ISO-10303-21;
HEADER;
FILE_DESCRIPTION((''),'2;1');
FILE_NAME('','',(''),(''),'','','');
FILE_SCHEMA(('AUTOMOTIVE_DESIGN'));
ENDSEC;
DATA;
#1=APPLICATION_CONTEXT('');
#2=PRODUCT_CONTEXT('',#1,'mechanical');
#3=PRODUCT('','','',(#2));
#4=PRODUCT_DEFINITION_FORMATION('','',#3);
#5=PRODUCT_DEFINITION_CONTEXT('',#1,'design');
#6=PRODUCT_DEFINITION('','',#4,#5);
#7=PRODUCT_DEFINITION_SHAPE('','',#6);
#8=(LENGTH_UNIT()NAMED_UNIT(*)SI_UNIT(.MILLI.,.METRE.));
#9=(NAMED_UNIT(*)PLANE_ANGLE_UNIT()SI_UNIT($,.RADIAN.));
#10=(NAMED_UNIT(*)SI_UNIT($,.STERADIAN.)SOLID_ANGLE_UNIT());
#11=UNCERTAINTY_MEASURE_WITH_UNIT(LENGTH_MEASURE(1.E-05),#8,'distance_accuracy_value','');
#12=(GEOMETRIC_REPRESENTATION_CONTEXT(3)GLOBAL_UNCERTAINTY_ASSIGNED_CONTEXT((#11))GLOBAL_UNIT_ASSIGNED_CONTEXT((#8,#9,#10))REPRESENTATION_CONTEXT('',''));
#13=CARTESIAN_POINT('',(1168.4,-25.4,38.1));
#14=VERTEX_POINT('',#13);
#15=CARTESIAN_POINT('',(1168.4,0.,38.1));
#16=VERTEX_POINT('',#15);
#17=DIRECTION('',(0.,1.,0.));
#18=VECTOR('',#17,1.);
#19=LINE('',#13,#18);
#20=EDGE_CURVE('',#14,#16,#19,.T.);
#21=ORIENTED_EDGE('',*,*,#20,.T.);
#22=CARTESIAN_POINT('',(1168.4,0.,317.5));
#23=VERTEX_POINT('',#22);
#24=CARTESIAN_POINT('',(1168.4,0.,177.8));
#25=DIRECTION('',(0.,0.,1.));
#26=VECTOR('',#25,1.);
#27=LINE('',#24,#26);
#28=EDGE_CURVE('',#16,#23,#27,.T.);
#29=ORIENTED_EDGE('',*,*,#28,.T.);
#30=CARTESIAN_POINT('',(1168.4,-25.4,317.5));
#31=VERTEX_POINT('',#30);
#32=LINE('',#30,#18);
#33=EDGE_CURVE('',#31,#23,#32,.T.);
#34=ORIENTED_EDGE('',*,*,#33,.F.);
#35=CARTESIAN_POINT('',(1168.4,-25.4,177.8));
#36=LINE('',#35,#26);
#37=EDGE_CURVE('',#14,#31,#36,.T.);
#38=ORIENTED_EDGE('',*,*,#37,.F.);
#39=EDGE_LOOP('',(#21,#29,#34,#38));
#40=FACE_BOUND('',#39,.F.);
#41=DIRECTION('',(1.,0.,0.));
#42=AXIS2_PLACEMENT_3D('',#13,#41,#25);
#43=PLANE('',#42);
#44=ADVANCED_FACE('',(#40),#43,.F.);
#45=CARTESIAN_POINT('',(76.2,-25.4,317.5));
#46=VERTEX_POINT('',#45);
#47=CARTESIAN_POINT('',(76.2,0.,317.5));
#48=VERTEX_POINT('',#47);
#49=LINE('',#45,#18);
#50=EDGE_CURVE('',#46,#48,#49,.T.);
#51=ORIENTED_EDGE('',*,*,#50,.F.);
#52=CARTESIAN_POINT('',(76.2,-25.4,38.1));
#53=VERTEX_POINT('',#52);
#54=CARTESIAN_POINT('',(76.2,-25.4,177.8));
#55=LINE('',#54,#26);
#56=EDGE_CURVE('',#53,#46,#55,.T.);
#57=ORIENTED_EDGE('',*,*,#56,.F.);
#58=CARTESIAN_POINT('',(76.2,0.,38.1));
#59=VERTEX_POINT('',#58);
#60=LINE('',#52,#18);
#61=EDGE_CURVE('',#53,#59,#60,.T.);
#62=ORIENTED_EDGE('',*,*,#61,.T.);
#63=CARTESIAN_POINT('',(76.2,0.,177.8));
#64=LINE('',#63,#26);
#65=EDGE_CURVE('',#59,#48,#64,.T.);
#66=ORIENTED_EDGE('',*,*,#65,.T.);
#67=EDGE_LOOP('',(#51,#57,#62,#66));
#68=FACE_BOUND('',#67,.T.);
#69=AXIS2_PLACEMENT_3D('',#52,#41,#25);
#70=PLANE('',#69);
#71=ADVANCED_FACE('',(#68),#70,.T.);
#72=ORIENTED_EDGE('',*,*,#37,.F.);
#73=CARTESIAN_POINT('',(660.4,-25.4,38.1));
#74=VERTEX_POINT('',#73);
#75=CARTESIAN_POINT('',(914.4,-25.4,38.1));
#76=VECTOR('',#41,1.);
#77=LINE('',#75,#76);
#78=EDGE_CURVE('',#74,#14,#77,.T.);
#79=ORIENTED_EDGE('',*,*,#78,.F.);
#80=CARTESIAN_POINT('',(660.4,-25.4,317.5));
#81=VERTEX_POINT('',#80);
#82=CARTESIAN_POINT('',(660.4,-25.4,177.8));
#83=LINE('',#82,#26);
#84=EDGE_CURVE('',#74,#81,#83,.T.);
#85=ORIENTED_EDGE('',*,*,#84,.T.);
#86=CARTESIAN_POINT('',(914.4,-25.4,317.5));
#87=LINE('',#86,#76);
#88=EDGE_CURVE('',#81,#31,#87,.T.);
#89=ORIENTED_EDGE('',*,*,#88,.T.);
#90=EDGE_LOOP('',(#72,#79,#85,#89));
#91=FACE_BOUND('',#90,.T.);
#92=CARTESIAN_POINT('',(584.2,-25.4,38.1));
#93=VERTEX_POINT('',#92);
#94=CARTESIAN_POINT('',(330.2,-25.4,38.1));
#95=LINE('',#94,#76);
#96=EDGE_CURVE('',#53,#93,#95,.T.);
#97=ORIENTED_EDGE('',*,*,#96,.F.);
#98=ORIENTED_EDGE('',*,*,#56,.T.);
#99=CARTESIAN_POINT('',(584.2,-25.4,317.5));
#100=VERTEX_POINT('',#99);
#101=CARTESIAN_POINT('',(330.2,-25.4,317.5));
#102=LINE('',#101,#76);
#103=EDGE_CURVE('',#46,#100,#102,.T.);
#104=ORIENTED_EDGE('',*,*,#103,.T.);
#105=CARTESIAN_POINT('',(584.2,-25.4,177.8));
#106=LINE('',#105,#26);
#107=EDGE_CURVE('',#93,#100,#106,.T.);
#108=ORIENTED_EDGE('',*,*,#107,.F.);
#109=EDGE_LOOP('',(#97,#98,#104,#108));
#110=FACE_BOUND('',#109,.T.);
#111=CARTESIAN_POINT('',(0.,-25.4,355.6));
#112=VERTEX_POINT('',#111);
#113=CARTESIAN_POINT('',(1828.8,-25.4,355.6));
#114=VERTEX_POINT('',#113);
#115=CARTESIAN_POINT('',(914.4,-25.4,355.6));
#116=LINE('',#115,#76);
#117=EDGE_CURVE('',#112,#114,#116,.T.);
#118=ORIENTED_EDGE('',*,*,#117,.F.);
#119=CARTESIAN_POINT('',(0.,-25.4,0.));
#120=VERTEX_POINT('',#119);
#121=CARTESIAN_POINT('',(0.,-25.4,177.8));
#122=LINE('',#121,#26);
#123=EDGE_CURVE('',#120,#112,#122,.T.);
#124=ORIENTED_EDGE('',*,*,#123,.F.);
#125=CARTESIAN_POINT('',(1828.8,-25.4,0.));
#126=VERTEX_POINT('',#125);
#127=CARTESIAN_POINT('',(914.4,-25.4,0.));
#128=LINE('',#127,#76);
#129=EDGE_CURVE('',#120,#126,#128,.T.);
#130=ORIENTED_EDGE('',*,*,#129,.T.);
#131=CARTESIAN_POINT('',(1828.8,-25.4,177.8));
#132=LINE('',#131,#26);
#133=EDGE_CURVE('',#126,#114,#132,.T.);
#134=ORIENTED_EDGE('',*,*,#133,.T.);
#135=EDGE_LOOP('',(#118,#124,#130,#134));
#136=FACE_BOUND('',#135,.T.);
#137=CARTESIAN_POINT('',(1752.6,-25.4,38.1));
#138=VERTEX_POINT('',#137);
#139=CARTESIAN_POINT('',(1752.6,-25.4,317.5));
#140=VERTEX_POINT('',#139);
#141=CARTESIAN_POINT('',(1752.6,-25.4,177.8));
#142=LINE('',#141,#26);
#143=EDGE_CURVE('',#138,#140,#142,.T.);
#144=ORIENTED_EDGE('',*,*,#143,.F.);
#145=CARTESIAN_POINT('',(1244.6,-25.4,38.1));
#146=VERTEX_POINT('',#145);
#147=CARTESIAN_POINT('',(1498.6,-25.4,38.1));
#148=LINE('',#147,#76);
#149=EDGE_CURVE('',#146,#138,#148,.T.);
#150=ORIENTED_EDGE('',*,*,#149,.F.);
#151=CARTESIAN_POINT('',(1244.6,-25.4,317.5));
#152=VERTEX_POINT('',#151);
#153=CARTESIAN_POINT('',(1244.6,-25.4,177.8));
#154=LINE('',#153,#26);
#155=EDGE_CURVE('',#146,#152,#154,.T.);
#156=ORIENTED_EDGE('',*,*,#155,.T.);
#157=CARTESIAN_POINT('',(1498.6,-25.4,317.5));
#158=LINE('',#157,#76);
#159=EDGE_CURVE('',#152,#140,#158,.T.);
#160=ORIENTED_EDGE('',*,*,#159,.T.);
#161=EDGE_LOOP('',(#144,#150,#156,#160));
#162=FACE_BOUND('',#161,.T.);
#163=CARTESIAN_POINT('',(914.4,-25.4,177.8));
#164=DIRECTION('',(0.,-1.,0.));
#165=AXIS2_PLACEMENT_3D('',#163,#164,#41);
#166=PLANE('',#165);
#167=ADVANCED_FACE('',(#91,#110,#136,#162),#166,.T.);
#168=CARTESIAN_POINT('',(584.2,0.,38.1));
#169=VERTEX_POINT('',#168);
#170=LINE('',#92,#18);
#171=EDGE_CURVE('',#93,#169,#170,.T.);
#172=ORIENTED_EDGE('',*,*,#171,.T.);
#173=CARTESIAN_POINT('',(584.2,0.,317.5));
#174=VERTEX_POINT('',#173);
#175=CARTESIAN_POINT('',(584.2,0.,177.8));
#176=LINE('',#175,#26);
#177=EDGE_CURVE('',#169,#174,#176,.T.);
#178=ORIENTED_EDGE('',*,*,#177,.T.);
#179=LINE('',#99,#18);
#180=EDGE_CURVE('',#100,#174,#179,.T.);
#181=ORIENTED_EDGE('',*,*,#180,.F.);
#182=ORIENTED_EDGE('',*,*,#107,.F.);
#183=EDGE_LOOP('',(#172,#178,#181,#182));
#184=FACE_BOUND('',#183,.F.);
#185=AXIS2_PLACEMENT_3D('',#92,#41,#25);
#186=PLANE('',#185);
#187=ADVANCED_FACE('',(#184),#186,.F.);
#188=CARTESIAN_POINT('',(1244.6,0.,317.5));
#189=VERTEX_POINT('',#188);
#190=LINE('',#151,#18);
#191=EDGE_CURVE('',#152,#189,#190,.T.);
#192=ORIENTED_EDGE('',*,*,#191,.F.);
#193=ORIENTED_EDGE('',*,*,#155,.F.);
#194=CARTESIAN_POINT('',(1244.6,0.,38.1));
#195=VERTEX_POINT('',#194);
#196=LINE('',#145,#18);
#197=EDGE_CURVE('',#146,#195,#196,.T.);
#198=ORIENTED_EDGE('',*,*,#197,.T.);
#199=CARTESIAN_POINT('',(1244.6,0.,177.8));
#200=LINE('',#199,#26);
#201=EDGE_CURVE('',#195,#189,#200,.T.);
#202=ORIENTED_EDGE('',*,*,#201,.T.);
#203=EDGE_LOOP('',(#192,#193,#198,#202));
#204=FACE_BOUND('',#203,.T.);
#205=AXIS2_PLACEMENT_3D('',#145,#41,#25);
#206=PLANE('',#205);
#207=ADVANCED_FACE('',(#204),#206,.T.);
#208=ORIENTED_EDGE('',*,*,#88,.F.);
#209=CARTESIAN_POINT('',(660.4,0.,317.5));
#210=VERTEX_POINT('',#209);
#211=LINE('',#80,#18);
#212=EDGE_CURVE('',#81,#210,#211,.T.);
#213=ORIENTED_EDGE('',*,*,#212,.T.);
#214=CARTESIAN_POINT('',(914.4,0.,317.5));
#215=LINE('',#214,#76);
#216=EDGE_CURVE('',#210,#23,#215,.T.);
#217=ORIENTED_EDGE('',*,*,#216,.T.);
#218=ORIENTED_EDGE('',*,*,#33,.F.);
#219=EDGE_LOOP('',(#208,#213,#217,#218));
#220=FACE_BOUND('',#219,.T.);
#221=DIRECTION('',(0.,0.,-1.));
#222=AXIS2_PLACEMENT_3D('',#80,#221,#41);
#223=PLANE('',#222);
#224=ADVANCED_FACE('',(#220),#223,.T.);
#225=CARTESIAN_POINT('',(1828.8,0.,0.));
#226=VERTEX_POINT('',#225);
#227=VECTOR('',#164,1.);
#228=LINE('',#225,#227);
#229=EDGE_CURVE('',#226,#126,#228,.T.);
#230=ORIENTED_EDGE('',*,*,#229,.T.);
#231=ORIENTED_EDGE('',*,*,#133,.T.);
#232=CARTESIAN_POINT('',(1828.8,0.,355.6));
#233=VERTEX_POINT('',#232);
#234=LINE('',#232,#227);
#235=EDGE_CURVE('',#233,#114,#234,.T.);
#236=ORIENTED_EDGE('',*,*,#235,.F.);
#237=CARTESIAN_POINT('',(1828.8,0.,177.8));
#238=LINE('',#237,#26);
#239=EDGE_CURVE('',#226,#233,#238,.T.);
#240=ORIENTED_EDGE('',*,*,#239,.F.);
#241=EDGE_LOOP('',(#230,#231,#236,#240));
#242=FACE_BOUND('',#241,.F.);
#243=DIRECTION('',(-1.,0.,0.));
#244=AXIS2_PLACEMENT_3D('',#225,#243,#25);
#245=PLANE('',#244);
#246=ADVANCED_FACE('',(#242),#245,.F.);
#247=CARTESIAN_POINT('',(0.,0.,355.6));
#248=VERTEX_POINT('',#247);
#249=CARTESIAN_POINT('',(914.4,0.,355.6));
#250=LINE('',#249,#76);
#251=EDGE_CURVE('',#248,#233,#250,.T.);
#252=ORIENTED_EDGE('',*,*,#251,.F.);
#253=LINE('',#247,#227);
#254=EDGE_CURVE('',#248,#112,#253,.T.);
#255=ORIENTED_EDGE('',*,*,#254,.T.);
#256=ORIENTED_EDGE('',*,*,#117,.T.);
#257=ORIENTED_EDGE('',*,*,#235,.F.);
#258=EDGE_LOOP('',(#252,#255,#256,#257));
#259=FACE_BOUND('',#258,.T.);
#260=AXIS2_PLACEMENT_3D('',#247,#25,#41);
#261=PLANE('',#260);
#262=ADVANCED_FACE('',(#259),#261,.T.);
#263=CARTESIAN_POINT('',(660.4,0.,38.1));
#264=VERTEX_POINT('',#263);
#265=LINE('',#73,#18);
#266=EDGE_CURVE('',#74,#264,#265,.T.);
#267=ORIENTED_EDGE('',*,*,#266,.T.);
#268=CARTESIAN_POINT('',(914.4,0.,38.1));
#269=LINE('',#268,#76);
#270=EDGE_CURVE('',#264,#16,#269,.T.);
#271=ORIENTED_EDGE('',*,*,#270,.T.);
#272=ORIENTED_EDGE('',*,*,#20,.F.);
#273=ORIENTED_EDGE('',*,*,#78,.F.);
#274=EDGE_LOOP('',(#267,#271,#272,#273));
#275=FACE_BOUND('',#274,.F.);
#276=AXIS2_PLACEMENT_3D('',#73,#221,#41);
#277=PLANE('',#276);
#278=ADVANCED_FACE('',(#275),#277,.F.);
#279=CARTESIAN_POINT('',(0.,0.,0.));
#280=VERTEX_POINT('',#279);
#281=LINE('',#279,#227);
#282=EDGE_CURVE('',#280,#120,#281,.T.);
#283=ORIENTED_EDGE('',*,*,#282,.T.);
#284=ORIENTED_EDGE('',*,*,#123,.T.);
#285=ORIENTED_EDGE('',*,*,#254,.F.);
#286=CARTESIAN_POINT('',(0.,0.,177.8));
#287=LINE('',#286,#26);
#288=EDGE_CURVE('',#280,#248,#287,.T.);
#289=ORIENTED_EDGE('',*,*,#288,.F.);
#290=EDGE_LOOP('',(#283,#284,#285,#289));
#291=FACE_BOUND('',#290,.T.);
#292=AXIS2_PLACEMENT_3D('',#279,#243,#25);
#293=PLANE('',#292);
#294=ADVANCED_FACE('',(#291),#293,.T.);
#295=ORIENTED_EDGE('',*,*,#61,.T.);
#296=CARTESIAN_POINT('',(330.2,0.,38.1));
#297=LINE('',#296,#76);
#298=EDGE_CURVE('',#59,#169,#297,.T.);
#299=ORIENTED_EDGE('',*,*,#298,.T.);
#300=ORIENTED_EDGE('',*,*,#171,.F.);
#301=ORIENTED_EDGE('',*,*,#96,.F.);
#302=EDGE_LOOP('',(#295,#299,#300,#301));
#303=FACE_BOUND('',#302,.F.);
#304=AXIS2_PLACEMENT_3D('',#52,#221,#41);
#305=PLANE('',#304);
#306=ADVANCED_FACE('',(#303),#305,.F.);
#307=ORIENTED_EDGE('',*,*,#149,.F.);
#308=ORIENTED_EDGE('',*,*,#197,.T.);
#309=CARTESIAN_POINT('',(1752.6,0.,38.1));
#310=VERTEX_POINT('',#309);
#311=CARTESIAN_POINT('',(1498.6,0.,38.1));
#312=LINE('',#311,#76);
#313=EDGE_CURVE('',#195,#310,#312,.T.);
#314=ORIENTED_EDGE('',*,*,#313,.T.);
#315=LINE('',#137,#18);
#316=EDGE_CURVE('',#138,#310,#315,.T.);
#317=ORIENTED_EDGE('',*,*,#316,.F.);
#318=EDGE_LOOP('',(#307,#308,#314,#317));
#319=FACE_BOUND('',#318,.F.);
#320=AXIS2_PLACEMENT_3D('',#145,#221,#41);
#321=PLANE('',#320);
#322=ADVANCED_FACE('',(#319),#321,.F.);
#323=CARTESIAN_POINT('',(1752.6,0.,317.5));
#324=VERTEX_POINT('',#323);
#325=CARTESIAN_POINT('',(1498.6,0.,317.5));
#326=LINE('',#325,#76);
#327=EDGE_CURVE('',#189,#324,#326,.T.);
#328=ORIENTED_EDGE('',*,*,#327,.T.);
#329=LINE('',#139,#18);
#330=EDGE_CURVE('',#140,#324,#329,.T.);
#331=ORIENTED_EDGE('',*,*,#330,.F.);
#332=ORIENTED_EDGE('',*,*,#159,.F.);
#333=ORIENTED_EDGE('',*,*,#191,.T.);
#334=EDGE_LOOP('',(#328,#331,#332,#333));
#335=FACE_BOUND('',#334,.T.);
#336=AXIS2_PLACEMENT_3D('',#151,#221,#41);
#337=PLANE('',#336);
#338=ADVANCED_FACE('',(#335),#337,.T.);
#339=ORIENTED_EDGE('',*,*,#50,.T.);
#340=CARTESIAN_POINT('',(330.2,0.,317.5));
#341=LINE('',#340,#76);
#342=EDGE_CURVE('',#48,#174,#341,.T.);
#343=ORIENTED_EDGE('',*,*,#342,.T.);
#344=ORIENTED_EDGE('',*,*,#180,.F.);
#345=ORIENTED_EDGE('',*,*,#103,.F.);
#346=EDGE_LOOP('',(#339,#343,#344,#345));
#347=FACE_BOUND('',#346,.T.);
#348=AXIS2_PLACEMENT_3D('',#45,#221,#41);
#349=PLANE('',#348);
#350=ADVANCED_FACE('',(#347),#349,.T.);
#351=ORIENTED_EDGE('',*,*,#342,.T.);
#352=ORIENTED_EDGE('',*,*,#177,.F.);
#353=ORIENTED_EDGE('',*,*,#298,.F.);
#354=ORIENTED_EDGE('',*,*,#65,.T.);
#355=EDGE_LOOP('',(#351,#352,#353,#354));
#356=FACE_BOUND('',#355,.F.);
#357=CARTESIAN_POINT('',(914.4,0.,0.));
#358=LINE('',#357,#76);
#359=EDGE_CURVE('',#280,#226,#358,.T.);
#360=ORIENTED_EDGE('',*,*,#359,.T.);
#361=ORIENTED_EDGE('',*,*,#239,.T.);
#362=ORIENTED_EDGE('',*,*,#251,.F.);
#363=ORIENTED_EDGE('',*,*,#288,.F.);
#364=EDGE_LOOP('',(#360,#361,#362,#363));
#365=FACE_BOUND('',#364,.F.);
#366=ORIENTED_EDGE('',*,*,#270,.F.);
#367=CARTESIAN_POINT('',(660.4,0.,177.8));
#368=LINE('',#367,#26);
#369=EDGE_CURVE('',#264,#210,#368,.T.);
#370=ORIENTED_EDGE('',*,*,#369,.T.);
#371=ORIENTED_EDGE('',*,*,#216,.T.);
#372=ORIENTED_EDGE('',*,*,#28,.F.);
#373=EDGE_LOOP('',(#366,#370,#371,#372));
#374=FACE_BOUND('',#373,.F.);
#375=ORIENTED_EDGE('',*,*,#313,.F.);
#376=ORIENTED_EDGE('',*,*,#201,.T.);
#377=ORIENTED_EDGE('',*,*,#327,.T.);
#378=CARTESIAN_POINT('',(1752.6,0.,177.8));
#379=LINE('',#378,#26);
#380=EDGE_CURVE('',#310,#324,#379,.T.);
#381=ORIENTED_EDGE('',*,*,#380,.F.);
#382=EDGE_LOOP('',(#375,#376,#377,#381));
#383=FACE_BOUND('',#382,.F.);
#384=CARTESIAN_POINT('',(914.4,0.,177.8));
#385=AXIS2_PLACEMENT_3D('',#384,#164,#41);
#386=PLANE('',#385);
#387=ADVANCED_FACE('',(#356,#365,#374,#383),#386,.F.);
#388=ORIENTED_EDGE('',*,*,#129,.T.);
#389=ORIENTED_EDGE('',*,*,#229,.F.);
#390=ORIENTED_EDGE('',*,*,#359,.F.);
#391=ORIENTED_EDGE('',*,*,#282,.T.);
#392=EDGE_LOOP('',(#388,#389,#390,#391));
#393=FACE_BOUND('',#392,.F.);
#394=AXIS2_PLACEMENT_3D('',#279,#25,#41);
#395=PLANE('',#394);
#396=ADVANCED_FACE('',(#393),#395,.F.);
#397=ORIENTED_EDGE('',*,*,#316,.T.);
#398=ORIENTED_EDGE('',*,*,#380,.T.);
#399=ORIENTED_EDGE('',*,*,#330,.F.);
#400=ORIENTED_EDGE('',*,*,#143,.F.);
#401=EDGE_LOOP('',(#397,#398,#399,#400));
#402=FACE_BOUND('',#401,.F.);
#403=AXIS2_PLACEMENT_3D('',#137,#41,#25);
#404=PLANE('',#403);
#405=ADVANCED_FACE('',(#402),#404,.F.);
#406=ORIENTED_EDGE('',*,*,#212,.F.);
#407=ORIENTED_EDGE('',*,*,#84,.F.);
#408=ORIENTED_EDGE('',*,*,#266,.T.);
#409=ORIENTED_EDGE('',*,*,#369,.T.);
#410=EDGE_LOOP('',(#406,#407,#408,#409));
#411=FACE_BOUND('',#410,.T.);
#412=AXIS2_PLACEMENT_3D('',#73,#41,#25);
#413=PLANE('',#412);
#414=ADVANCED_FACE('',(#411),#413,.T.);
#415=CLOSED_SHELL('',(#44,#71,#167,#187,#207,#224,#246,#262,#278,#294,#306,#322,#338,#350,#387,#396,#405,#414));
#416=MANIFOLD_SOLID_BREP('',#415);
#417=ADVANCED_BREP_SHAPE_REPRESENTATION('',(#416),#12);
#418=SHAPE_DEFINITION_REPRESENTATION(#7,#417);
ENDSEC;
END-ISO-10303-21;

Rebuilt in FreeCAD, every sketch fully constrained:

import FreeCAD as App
import Part
import Sketcher
from FreeCAD import Vector
Q = App.Units.Quantity


def add_polygon(sketch, points):
    """Adds a closed chain of lines whose ends are joined by coincident constraints."""
    first, n = sketch.GeometryCount, len(points)
    for a, b in zip(points, points[1:] + points[:1]):
        sketch.addGeometry(Part.LineSegment(App.Vector(*a, 0), App.Vector(*b, 0)), False)
    for i in range(n):
        sketch.addConstraint(Sketcher.Constraint("Coincident", first + i, 2, first + (i + 1) % n, 1))

doc = App.newDocument("Part")
params = doc.addObject("Spreadsheet::Sheet", "Params")
for row, (alias, value) in enumerate([
    ("sketch1_width", "72 in"),
    ("sketch1_height", "14 in"),
    ("pad1_length", "1 in"),
    ("sketch2_width", "20 in"),
    ("sketch2_height", "11 in"),
    ("pocket1_length", "1 in"),
], start=1):
    params.set(f"A{row}", alias)
    params.set(f"B{row}", "=" + value)
    params.setAlias(f"B{row}", alias)

body = doc.addObject("PartDesign::Body", "Body")

# Sketch on XZ plane
sketch1 = body.newObject("Sketcher::SketchObject", "Sketch")
sketch1.AttachmentSupport = (doc.getObject("XZ_Plane"), [""])
sketch1.MapMode = "FlatFace"
add_polygon(sketch1, [(0, 356), (0, 0), (1829, 0), (1829, 356)])  # lines 0-3
sketch1.addConstraint(Sketcher.Constraint("Vertical", 0))
sketch1.addConstraint(Sketcher.Constraint("Horizontal", 1))
sketch1.addConstraint(Sketcher.Constraint("Vertical", 2))
sketch1.addConstraint(Sketcher.Constraint("Horizontal", 3))
sketch1.addConstraint(Sketcher.Constraint("Coincident", 0, 2, -1, 1))
sketch1.addConstraint(Sketcher.Constraint("DistanceX", 1, 1, 1, 2, Q("72 in")))
sketch1.addConstraint(Sketcher.Constraint("DistanceY", 0, 2, 0, 1, Q("14 in")))
sketch1.setExpression("Constraints[9]", "Params.sketch1_width")
sketch1.setExpression("Constraints[10]", "Params.sketch1_height")
pad1 = body.newObject("PartDesign::Pad", "Pad")
pad1.Profile = sketch1
pad1.setExpression("Length", "Params.pad1_length")

# Sketch on XZ plane
sketch2 = body.newObject("Sketcher::SketchObject", "Sketch001")
sketch2.AttachmentSupport = (doc.getObject("XZ_Plane"), [""])
sketch2.MapMode = "FlatFace"
sketch2.AttachmentOffset = App.Placement(Vector(0, 0, 1 * 25.4), App.Rotation())
add_polygon(sketch2, [(76, 318), (76, 38), (584, 38), (584, 318)])  # lines 0-3
add_polygon(sketch2, [(660, 318), (660, 38), (1168, 38), (1168, 318)])  # lines 4-7
add_polygon(sketch2, [(1245, 318), (1245, 38), (1753, 38), (1753, 318)])  # lines 8-11
sketch2.addConstraint(Sketcher.Constraint("Vertical", 0))
sketch2.addConstraint(Sketcher.Constraint("Horizontal", 1))
sketch2.addConstraint(Sketcher.Constraint("Vertical", 2))
sketch2.addConstraint(Sketcher.Constraint("Horizontal", 3))
sketch2.addConstraint(Sketcher.Constraint("Vertical", 4))
sketch2.addConstraint(Sketcher.Constraint("Horizontal", 5))
sketch2.addConstraint(Sketcher.Constraint("Vertical", 6))
sketch2.addConstraint(Sketcher.Constraint("Horizontal", 7))
sketch2.addConstraint(Sketcher.Constraint("Vertical", 8))
sketch2.addConstraint(Sketcher.Constraint("Horizontal", 9))
sketch2.addConstraint(Sketcher.Constraint("Vertical", 10))
sketch2.addConstraint(Sketcher.Constraint("Horizontal", 11))
sketch2.addConstraint(Sketcher.Constraint("Horizontal", 1, 2, 4, 2))
sketch2.addConstraint(Sketcher.Constraint("Horizontal", 3, 2, 6, 2))
sketch2.addConstraint(Sketcher.Constraint("Horizontal", 5, 2, 8, 2))
sketch2.addConstraint(Sketcher.Constraint("Horizontal", 7, 2, 10, 2))
sketch2.addConstraint(Sketcher.Constraint("Equal", 3, 5))
sketch2.addConstraint(Sketcher.Constraint("Equal", 7, 9))
sketch2.addConstraint(Sketcher.Constraint("DistanceX", 1, 1, 1, 2, Q("20 in")))
sketch2.addConstraint(Sketcher.Constraint("DistanceY", 0, 2, 0, 1, Q("11 in")))
sketch2.addConstraint(Sketcher.Constraint("DistanceX", -1, 1, 0, 2, Q("3 in")))
sketch2.addConstraint(Sketcher.Constraint("DistanceX", -1, 1, 4, 2, Q("26 in")))
sketch2.addConstraint(Sketcher.Constraint("DistanceX", -1, 1, 8, 2, Q("49 in")))
sketch2.addConstraint(Sketcher.Constraint("DistanceY", -1, 1, 0, 2, Q("1.5 in")))
sketch2.setExpression("Constraints[30]", "Params.sketch2_width")
sketch2.setExpression("Constraints[31]", "Params.sketch2_height")
pocket1 = body.newObject("PartDesign::Pocket", "Pocket")
pocket1.Profile = sketch2
pocket1.setExpression("Length", "Params.pocket1_length")

doc.recompute()
